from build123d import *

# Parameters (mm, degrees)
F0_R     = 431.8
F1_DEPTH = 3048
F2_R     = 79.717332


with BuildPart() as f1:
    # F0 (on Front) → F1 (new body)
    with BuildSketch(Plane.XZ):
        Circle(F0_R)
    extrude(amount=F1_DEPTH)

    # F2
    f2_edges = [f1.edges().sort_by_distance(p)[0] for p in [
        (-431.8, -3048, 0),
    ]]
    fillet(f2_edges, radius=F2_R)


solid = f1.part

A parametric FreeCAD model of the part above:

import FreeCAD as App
import Part
import Sketcher

V = App.Vector
Q = App.Units.Quantity


def edges_at(feature, points):
    """Names of the edges that pass closest to the given points."""
    edges = feature.Shape.Edges
    near = lambda p: min(range(len(edges)), key=lambda i: edges[i].distToShape(Part.Vertex(*p))[0])
    return sorted({f"Edge{near(p) + 1}" for p in points})

doc = App.newDocument("Part")
params = doc.addObject("Spreadsheet::Sheet", "Params")
for row, (alias, value) in enumerate([
    ("sketch1_diameter", "34 in"),
    ("pad1_length", "120 in"),
    ("fillet_radius", "79.717332 mm"),
], start=1):
    params.set(f"A{row}", alias)
    params.set(f"B{row}", "=" + value)
    params.setAlias(f"B{row}", alias)

body = doc.addObject("PartDesign::Body", "Body")

sketch1 = doc.addObject("Sketcher::SketchObject", "Sketch")
body.addObject(sketch1)
sketch1.AttachmentSupport = (doc.XZ_Plane, [""])
sketch1.MapMode = "FlatFace"
sketch1.addGeometry(Part.Circle(V(0, 0, 0), V(0, 0, 1), 431.8), False)
sketch1.addConstraint([
    Sketcher.Constraint("Coincident", 0, 3, -1, 1),
    Sketcher.Constraint("Diameter", 0, Q("34 in")),
])
sketch1.setExpression("Constraints[1]", "Params.sketch1_diameter")
pad1 = doc.addObject("PartDesign::Pad", "Pad")
body.addObject(pad1)
pad1.Profile = sketch1
pad1.setExpression("Length", "Params.pad1_length")
doc.recompute()

fillet = doc.addObject("PartDesign::Fillet", "Fillet")
body.addObject(fillet)
fillet.Base = (pad1, edges_at(pad1, [(-431.8, -3048, 0)]))
fillet.setExpression("Radius", "Params.fillet_radius")

doc.recompute()
